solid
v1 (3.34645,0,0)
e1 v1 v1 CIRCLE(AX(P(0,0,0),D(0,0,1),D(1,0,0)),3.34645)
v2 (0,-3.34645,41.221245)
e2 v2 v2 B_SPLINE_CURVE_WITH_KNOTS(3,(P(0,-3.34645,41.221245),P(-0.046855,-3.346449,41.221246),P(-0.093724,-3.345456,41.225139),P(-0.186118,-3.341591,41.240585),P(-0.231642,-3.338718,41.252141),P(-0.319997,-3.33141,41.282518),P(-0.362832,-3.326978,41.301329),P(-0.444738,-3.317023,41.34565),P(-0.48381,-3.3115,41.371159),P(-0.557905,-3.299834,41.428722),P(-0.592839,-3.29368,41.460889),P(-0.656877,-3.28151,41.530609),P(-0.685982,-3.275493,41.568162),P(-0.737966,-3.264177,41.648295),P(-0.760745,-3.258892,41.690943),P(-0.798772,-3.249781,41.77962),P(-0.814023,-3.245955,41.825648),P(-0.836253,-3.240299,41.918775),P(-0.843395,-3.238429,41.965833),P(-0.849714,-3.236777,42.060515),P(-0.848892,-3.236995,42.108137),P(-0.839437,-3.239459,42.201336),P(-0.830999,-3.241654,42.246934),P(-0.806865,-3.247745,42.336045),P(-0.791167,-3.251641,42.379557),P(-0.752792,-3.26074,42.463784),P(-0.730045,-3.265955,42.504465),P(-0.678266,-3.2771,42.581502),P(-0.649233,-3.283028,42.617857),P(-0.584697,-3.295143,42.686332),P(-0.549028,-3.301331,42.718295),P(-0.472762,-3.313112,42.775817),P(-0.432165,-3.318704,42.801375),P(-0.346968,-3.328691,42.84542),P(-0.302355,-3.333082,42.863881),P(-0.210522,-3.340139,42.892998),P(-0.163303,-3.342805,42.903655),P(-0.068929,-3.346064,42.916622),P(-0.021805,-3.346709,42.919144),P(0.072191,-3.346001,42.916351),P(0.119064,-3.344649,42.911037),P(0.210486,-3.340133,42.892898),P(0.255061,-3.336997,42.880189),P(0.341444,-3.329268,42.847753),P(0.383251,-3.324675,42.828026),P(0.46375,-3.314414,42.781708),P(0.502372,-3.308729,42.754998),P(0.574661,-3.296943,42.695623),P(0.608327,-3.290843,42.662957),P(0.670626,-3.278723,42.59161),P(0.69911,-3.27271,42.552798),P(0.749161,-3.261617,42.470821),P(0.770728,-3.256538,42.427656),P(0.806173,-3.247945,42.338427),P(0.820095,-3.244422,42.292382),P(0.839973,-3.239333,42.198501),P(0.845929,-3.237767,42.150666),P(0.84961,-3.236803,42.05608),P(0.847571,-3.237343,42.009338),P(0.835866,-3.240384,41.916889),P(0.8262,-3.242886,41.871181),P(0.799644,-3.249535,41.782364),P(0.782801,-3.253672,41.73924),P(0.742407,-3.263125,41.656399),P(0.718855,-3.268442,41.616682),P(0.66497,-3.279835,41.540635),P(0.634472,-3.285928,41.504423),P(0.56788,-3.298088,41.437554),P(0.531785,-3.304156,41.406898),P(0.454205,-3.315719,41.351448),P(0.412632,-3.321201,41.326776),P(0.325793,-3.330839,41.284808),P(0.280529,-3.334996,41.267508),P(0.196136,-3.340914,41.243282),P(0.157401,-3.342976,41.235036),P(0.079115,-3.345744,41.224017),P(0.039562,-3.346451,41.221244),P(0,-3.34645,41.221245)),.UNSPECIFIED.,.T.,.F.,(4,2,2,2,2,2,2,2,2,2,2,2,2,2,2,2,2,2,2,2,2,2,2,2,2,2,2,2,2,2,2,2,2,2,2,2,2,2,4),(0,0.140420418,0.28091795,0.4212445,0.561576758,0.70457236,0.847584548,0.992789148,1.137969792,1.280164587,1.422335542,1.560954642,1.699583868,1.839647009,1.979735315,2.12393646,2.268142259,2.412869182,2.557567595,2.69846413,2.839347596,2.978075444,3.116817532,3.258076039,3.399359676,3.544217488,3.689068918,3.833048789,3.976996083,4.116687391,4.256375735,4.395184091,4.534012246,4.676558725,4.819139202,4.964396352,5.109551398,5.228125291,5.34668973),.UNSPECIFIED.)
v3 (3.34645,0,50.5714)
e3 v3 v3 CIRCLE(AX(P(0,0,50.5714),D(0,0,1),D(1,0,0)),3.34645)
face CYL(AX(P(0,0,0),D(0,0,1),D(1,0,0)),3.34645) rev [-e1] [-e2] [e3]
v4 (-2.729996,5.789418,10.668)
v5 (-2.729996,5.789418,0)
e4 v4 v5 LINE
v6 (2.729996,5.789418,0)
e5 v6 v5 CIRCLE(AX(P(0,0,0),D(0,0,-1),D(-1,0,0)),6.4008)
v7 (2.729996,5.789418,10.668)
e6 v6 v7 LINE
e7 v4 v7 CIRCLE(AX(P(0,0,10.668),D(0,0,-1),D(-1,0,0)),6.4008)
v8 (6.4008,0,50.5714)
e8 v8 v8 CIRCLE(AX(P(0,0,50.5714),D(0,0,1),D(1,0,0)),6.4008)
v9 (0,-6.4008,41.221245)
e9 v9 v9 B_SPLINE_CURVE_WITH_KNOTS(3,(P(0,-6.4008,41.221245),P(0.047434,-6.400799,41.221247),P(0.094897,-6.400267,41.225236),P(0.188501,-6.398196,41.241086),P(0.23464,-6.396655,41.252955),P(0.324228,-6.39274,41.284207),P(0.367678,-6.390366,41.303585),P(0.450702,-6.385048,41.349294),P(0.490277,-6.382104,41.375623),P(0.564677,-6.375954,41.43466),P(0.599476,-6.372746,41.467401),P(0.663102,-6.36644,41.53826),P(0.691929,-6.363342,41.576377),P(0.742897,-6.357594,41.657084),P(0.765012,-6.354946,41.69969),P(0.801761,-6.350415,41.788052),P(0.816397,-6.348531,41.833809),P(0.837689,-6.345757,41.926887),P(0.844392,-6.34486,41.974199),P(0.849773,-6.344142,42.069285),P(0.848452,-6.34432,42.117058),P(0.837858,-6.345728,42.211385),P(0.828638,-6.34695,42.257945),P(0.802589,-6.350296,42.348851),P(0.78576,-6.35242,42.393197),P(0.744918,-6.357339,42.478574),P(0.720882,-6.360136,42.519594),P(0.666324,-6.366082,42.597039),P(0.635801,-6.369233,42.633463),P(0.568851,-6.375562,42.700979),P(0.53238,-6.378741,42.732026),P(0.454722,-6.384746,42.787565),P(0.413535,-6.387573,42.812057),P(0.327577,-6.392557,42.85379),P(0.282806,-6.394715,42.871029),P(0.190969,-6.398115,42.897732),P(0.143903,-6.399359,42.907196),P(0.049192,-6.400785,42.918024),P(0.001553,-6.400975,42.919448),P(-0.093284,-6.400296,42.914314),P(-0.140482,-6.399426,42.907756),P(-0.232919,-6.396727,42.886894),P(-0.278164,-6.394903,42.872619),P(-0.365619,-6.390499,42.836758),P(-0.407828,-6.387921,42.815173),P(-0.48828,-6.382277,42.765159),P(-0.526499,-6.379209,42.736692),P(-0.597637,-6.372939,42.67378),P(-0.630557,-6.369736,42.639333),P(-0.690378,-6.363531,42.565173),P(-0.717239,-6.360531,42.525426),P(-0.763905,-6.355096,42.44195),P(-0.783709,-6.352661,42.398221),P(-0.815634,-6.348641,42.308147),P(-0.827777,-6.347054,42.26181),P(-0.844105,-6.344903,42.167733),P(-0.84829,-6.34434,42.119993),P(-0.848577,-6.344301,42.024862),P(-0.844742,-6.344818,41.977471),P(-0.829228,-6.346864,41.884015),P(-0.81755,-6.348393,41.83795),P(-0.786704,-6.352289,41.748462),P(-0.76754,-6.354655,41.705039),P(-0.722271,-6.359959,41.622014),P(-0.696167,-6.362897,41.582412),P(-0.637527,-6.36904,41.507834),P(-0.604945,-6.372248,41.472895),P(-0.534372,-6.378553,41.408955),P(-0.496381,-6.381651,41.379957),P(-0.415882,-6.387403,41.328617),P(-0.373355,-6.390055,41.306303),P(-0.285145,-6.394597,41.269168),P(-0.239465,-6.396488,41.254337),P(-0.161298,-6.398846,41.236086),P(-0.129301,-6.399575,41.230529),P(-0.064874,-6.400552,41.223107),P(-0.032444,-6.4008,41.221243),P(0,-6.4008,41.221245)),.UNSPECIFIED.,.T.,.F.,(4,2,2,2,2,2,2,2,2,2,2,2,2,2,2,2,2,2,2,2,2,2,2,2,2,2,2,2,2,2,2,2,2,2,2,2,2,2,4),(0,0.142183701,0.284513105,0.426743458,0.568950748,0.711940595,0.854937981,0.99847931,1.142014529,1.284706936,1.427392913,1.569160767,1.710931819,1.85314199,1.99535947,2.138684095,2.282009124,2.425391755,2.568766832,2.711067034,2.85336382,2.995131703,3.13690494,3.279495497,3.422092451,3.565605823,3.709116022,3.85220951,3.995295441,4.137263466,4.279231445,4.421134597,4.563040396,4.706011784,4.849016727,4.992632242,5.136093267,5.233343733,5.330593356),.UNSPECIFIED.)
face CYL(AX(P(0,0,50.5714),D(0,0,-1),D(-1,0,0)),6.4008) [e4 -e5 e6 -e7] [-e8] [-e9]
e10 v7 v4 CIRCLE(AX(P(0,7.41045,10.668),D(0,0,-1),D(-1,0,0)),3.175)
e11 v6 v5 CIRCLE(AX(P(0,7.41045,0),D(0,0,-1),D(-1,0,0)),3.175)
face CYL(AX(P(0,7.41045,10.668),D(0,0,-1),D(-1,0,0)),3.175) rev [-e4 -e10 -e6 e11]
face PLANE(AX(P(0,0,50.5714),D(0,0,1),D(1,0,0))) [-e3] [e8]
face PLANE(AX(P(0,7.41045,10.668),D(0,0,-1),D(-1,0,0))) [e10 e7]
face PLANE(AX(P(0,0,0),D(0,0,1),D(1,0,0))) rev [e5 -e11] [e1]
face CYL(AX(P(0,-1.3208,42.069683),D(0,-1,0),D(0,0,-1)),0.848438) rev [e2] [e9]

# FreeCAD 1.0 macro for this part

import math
import FreeCAD as App
import Part
import Sketcher

V = App.Vector
Q = App.Units.Quantity

doc = App.newDocument("Part")
body = doc.addObject("PartDesign::Body", "Body")

# Sketch on XY plane
sketch1 = body.newObject("Sketcher::SketchObject", "Sketch")
sketch1.AttachmentSupport = (doc.getObject("XY_Plane"), [""])
sketch1.MapMode = "FlatFace"
sketch1.addGeometry(Part.Circle(V(0, 0, 0), V(0, 0, 1), 12.5349), False)
sketch1.addConstraint([
    Sketcher.Constraint("Coincident", 0, 3, -1, 1),
    Sketcher.Constraint("Diameter", 0, Q("0.987 in")),
])
pad1 = body.newObject("PartDesign::Pad", "Pad")
pad1.Profile = sketch1
pad1.Length = Q("0.2535 in")

# Sketch on XY plane
sketch2 = body.newObject("Sketcher::SketchObject", "Sketch001")
sketch2.AttachmentSupport = (doc.getObject("XY_Plane"), [""])
sketch2.MapMode = "FlatFace"
sketch2.AttachmentOffset = App.Placement(V(0, 0, 0.2535 * 25.4), App.Rotation())
sketch2.addGeometry([
    Part.LineSegment(V(-9.8298, 7.778094, 0), V(9.8298, 7.778094, 0)),
    Part.ArcOfCircle(Part.Circle(V(0, 0, 0), V(0, 0, 1), 12.5349), math.radians(38.353757), math.radians(141.646243)),
], False)
sketch2.addConstraint([
    Sketcher.Constraint("Coincident", 0, 1, 1, 2),
    Sketcher.Constraint("Coincident", 1, 1, 0, 2),
    Sketcher.Constraint("Horizontal", 0),
    Sketcher.Constraint("Coincident", 1, 3, -1, 1),
    Sketcher.Constraint("Radius", 1, Q("0.4935 in")),
    Sketcher.Constraint("DistanceX", 0, 1, 0, 2, Q("0.774 in")),
])
pad2 = body.newObject("PartDesign::Pad", "Pad001")
pad2.Profile = sketch2
pad2.Length = Q("0.159 in")

# Sketch on XY plane
sketch3 = body.newObject("Sketcher::SketchObject", "Sketch002")
sketch3.AttachmentSupport = (doc.getObject("XY_Plane"), [""])
sketch3.MapMode = "FlatFace"
sketch3.AttachmentOffset = App.Placement(V(0, 0, 0.2535 * 25.4), App.Rotation())
sketch3.addGeometry(Part.Circle(V(0, 0, 0), V(0, 0, 1), 6.4008), False)
sketch3.addConstraint([
    Sketcher.Constraint("Coincident", 0, 3, -1, 1),
    Sketcher.Constraint("Diameter", 0, Q("0.504 in")),
])
pad3 = body.newObject("PartDesign::Pad", "Pad002")
pad3.Profile = sketch3
pad3.Length = Q("1.7375 in")

# Sketch on XY plane
sketch4 = body.newObject("Sketcher::SketchObject", "Sketch003")
sketch4.AttachmentSupport = (doc.getObject("XY_Plane"), [""])
sketch4.MapMode = "FlatFace"
sketch4.addGeometry(Part.Circle(V(0, 7.41045, 0), V(0, 0, 1), 3.175), False)
sketch4.addConstraint([
    Sketcher.Constraint("PointOnObject", 0, 3, -2),
    Sketcher.Constraint("Diameter", 0, Q("0.25 in")),
    Sketcher.Constraint("DistanceY", -1, 1, 0, 3, 7.41045),
])
pocket1 = body.newObject("PartDesign::Pocket", "Pocket")
pocket1.Profile = sketch4
pocket1.Length = Q("0.42 in")
pocket1.Reversed = True

# Sketch on XY plane
sketch5 = body.newObject("Sketcher::SketchObject", "Sketch004")
sketch5.AttachmentSupport = (doc.getObject("XY_Plane"), [""])
sketch5.MapMode = "FlatFace"
sketch5.addGeometry([
    Part.LineSegment(V(-2.667, -12.247891, 0), V(2.667, -12.247891, 0)),
    Part.ArcOfCircle(Part.Circle(V(0, 0, 0), V(0, 0, 1), 12.5349), math.radians(-102.284494), math.radians(-77.715506)),
], False)
sketch5.addConstraint([
    Sketcher.Constraint("Coincident", 0, 1, 1, 1),
    Sketcher.Constraint("Coincident", 1, 2, 0, 2),
    Sketcher.Constraint("Horizontal", 0),
    Sketcher.Constraint("Coincident", 1, 3, -1, 1),
    Sketcher.Constraint("DistanceX", 0, 1, 0, 2, Q("0.21 in")),
    Sketcher.Constraint("Radius", 1, Q("0.4935 in")),
])
pocket2 = body.newObject("PartDesign::Pocket", "Pocket001")
pocket2.Profile = sketch5
pocket2.Type = "ThroughAll"
pocket2.Reversed = True

# Sketch on XY plane
sketch6 = body.newObject("Sketcher::SketchObject", "Sketch005")
sketch6.AttachmentSupport = (doc.getObject("XY_Plane"), [""])
sketch6.MapMode = "FlatFace"
sketch6.AttachmentOffset = App.Placement(V(0, 0, 1.991 * 25.4), App.Rotation())
sketch6.addGeometry(Part.Circle(V(0, 0, 0), V(0, 0, 1), 3.34645), False)
sketch6.addConstraint([
    Sketcher.Constraint("Coincident", 0, 3, -1, 1),
    Sketcher.Constraint("Diameter", 0, Q("0.2635 in")),
])
pocket3 = body.newObject("PartDesign::Pocket", "Pocket002")
pocket3.Profile = sketch6
pocket3.Type = "ThroughAll"

# Sketch on XY plane
sketch7 = body.newObject("Sketcher::SketchObject", "Sketch006")
sketch7.AttachmentSupport = (doc.getObject("XY_Plane"), [""])
sketch7.MapMode = "FlatFace"
sketch7.addGeometry([
    Part.Circle(V(0, 0, 0), V(0, 0, 1), 12.5349),
    Part.Circle(V(0, 0, 0), V(0, 0, 1), 6.4008),
], False)
sketch7.addConstraint([
    Sketcher.Constraint("Coincident", 0, 3, -1, 1),
    Sketcher.Constraint("Coincident", 1, 3, -1, 1),
    Sketcher.Constraint("Diameter", 0, Q("0.987 in")),
    Sketcher.Constraint("Diameter", 1, Q("0.504 in")),
])
pocket4 = body.newObject("PartDesign::Pocket", "Pocket003")
pocket4.Profile = sketch7
pocket4.Type = "ThroughAll"
pocket4.Reversed = True

# Sketch on XZ plane
sketch8 = body.newObject("Sketcher::SketchObject", "Sketch007")
sketch8.AttachmentSupport = (doc.getObject("XZ_Plane"), [""])
sketch8.MapMode = "FlatFace"
sketch8.AttachmentOffset = App.Placement(V(0, 0, 0.252 * 25.4), App.Rotation())
sketch8.addGeometry(Part.Circle(V(0, 42.069683, 0), V(0, 0, 1), 0.848438), False)
sketch8.addConstraint([
    Sketcher.Constraint("PointOnObject", 0, 3, -2),
    Sketcher.Constraint("Diameter", 0, 1.696877),
    Sketcher.Constraint("DistanceY", -1, 1, 0, 3, 42.069683),
])
pocket5 = body.newObject("PartDesign::Pocket", "Pocket004")
pocket5.Profile = sketch8
pocket5.Length = Q("0.2 in")

doc.recompute()
